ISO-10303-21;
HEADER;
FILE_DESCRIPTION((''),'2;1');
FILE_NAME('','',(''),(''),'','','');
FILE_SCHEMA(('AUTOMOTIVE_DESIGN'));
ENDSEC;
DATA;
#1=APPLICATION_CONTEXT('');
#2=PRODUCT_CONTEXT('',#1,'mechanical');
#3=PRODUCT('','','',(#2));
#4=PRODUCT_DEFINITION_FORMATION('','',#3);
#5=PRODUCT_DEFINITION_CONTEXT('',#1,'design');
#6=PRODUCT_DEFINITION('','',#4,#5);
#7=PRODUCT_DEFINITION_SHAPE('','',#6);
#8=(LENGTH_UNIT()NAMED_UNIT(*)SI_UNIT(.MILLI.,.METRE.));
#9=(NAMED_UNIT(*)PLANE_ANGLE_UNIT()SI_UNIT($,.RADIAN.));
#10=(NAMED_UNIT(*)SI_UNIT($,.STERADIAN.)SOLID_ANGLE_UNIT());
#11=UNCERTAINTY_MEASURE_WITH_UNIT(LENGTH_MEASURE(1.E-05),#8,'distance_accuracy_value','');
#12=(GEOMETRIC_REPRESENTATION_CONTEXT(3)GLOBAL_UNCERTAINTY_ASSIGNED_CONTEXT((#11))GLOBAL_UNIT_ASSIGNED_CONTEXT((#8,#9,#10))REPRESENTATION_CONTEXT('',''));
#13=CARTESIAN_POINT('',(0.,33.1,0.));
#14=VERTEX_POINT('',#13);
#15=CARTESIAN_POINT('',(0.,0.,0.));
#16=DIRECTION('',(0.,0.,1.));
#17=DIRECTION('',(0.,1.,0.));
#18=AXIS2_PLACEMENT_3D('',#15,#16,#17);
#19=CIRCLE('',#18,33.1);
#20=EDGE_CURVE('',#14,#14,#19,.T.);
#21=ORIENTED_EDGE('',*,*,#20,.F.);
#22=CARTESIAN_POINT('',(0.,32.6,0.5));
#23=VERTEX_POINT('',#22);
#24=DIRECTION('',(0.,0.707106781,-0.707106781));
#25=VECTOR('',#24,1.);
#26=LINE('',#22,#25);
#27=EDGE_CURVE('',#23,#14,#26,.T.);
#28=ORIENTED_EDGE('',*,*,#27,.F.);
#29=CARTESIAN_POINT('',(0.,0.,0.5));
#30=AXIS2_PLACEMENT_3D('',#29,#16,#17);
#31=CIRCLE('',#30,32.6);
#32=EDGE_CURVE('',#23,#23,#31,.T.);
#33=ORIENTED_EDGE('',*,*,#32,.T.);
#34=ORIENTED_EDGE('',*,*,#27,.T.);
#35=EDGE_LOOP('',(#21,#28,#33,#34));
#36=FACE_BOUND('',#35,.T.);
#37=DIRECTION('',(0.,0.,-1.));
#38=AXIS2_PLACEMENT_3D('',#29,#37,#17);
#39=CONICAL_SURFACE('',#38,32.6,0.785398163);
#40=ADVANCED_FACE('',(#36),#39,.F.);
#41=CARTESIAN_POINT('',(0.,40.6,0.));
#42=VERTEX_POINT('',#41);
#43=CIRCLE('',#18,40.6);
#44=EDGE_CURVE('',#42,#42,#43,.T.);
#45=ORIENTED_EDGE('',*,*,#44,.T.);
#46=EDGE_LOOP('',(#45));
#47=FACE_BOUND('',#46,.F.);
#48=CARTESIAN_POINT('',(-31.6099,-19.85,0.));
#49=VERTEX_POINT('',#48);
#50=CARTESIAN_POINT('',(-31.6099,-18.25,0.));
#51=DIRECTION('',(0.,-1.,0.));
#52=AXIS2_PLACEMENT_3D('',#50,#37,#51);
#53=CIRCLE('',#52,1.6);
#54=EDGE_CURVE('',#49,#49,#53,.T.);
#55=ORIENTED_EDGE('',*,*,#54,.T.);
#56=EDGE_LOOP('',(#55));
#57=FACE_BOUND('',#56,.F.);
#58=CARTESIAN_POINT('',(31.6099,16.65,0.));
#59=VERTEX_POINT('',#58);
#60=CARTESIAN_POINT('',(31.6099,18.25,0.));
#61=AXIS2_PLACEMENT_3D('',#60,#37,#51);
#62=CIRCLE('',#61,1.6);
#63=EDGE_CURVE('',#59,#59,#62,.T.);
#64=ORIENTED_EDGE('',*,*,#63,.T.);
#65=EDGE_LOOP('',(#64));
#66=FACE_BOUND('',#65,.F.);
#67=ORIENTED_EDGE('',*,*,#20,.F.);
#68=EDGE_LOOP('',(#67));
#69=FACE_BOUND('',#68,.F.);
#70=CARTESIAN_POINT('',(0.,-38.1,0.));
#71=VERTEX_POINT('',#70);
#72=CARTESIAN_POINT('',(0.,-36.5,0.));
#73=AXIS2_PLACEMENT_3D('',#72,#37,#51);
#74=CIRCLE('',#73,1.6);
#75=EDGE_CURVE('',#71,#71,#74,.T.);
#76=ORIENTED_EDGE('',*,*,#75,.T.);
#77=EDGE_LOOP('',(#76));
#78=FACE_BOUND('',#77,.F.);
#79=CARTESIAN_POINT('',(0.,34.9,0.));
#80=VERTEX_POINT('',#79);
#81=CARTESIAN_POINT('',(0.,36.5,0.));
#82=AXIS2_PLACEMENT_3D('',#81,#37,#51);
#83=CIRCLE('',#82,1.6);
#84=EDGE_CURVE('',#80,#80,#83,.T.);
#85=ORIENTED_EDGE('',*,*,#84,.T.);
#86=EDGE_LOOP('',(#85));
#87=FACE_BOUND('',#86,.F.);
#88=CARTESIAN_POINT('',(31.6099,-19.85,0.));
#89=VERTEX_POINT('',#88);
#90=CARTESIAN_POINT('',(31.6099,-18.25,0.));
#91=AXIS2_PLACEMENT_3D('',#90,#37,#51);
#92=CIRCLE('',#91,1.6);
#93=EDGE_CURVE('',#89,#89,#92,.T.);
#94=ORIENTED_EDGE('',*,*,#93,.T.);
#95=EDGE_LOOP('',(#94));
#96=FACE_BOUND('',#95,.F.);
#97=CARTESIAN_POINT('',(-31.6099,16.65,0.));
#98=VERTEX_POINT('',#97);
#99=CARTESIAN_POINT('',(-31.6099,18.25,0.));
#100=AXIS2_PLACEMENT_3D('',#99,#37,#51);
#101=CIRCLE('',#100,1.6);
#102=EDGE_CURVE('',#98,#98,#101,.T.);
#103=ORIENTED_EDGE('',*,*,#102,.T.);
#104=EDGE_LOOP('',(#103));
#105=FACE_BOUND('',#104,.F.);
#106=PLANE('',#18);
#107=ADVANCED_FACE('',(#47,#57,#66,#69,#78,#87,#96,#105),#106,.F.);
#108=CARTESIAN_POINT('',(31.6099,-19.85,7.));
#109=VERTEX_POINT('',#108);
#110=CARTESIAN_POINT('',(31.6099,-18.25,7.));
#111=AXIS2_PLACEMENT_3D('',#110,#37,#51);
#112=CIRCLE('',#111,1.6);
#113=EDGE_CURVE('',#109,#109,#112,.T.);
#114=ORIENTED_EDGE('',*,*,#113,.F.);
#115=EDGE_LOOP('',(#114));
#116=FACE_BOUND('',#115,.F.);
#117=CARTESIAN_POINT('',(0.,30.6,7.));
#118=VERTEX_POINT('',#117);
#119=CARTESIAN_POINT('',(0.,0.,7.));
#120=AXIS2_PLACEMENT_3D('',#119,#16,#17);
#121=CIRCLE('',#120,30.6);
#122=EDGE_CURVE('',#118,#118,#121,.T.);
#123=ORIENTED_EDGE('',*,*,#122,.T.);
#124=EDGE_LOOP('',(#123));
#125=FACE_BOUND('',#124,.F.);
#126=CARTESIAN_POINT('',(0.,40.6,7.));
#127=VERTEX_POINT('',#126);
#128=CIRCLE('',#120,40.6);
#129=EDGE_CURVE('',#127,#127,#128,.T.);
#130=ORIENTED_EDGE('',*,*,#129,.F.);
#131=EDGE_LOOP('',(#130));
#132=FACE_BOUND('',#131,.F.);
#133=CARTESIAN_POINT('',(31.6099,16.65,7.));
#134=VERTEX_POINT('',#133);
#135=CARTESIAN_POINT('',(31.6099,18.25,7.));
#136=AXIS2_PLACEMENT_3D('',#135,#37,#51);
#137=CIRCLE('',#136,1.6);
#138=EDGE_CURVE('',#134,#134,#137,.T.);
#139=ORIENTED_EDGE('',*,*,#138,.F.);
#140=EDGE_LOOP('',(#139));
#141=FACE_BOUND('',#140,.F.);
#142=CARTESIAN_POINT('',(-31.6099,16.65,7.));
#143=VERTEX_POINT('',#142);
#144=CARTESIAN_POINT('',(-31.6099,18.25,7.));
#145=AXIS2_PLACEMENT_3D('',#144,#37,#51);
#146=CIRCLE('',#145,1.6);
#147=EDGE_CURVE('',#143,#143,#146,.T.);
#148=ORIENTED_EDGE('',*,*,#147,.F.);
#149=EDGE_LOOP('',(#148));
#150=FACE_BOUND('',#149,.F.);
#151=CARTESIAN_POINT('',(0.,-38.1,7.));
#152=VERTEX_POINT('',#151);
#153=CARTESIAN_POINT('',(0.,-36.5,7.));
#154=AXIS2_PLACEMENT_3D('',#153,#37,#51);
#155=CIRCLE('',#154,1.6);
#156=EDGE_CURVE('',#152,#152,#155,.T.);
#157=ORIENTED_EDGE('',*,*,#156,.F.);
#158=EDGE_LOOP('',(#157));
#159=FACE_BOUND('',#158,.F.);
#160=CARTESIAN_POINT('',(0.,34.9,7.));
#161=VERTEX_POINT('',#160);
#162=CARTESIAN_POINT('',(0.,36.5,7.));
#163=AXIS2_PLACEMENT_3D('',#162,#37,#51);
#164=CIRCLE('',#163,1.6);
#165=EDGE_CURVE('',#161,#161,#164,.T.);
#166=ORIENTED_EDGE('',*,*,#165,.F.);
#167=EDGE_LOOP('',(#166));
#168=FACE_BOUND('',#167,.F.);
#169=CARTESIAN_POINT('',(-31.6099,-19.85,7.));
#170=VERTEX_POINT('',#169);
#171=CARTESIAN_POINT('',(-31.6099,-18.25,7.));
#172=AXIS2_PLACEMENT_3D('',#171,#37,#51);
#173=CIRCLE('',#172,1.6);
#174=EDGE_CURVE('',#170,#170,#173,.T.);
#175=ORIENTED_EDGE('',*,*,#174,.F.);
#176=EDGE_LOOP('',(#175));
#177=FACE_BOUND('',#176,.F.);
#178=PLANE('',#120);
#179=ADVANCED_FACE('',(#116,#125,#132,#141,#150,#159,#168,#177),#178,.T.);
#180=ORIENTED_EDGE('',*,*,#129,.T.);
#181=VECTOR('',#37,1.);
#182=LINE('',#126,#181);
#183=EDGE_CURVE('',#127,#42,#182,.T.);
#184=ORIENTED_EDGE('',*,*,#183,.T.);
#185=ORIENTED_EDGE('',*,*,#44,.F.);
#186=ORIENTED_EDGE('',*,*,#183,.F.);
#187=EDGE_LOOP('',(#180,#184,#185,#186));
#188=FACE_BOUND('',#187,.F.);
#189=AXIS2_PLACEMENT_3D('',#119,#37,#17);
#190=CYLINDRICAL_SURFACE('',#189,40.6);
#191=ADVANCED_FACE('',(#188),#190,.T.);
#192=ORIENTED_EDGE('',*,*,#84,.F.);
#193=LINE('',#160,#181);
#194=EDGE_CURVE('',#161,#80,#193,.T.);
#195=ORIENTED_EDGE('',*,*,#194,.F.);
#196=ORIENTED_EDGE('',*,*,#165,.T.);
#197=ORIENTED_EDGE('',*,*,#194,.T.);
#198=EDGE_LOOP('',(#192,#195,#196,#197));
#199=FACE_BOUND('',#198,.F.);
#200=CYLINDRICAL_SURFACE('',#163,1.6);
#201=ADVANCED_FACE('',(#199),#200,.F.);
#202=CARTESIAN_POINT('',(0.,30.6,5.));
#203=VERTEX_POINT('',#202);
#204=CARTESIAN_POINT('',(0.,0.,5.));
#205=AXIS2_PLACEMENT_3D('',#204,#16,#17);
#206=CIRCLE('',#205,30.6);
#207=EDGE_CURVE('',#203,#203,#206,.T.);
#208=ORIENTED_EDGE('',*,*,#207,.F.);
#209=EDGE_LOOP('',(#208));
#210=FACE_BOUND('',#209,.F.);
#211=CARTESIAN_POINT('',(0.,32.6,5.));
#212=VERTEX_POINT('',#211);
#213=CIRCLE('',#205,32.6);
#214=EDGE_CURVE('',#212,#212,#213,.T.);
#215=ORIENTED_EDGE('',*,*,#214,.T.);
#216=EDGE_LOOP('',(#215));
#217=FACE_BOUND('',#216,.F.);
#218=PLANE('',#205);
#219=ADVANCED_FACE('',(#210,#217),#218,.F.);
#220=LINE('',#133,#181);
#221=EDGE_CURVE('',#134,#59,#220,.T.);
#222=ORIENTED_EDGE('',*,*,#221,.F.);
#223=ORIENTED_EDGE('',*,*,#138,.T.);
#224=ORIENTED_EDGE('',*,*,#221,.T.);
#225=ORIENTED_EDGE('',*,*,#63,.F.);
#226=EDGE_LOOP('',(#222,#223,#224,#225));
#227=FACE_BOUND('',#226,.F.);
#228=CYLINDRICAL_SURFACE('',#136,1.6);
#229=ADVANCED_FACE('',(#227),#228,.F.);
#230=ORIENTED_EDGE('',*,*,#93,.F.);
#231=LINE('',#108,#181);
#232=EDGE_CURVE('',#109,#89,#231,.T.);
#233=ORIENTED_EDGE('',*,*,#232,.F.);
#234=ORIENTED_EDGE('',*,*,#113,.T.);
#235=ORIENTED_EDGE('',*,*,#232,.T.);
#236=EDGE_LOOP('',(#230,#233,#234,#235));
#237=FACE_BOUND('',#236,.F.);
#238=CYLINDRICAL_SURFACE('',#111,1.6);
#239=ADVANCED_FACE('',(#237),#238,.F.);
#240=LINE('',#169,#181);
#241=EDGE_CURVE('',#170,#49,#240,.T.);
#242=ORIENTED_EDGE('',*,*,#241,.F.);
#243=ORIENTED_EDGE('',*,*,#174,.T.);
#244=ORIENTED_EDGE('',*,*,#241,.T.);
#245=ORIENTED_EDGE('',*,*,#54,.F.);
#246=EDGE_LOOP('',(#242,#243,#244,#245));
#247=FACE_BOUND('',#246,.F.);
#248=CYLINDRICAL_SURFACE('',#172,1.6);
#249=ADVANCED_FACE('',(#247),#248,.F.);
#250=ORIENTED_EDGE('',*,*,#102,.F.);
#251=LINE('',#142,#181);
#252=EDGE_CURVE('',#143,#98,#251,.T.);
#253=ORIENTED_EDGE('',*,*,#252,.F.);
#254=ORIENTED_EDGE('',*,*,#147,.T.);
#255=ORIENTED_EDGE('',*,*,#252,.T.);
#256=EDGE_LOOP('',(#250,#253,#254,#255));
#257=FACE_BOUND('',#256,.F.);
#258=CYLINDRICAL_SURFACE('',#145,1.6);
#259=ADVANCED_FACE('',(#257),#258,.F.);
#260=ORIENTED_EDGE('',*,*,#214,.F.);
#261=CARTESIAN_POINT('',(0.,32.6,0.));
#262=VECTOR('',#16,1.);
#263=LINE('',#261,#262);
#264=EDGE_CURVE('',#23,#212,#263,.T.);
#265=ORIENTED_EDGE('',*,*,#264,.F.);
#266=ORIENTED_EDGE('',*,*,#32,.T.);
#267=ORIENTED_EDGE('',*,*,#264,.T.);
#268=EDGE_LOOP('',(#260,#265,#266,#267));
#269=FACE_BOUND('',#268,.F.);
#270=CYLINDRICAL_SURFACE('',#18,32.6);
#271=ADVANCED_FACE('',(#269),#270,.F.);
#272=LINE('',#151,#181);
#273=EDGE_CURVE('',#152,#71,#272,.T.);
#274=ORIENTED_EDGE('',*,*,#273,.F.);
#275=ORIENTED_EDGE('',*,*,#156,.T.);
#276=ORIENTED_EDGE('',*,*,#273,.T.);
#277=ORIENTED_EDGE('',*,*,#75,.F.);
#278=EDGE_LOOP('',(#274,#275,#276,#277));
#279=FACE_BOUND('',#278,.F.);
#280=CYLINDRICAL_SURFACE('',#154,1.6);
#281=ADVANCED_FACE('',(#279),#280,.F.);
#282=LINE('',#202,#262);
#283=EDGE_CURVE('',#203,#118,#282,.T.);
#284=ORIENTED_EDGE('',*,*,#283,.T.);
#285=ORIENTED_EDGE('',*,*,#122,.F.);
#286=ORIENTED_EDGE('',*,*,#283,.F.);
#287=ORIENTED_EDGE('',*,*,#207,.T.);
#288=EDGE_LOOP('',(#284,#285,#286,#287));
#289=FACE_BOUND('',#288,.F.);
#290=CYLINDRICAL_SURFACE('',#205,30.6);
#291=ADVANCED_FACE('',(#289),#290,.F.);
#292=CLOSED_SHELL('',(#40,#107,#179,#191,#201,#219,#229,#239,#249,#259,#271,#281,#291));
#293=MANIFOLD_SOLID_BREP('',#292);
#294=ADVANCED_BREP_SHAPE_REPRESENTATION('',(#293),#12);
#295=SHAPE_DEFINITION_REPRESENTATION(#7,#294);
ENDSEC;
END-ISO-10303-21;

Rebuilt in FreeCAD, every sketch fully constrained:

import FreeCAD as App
import Part
import Sketcher
from FreeCAD import Vector


def edges_at(feature, points):
    """Names of the edges that pass closest to the given points."""
    edges = feature.Shape.Edges
    near = lambda p: min(range(len(edges)), key=lambda i: edges[i].distToShape(Part.Vertex(*p))[0])
    return sorted({f"Edge{near(p) + 1}" for p in points})

doc = App.newDocument("Part")
body = doc.addObject("PartDesign::Body", "Body")

# Sketch on YZ plane
sketch1 = body.newObject("Sketcher::SketchObject", "Sketch")
sketch1.AttachmentSupport = (doc.getObject("YZ_Plane"), [""])
sketch1.MapMode = "FlatFace"
sketch1.addGeometry(Part.LineSegment(Vector(32.6, 5, 0), Vector(32.6, 0, 0)), False)
sketch1.addGeometry(Part.LineSegment(Vector(32.6, 0, 0), Vector(40.6, 0, 0)), False)
sketch1.addGeometry(Part.LineSegment(Vector(40.6, 0, 0), Vector(40.6, 7, 0)), False)
sketch1.addGeometry(Part.LineSegment(Vector(40.6, 7, 0), Vector(30.6, 7, 0)), False)
sketch1.addGeometry(Part.LineSegment(Vector(30.6, 7, 0), Vector(30.6, 5, 0)), False)
sketch1.addGeometry(Part.LineSegment(Vector(30.6, 5, 0), Vector(32.6, 5, 0)), False)
sketch1.addConstraint(Sketcher.Constraint("Coincident", 0, 2, 1, 1))
sketch1.addConstraint(Sketcher.Constraint("Coincident", 1, 2, 2, 1))
sketch1.addConstraint(Sketcher.Constraint("Coincident", 2, 2, 3, 1))
sketch1.addConstraint(Sketcher.Constraint("Coincident", 3, 2, 4, 1))
sketch1.addConstraint(Sketcher.Constraint("Coincident", 4, 2, 5, 1))
sketch1.addConstraint(Sketcher.Constraint("Coincident", 5, 2, 0, 1))
sketch1.addConstraint(Sketcher.Constraint("Vertical", 0))
sketch1.addConstraint(Sketcher.Constraint("Horizontal", 1))
sketch1.addConstraint(Sketcher.Constraint("Vertical", 2))
sketch1.addConstraint(Sketcher.Constraint("Horizontal", 3))
sketch1.addConstraint(Sketcher.Constraint("Vertical", 4))
sketch1.addConstraint(Sketcher.Constraint("Horizontal", 5))
sketch1.addConstraint(Sketcher.Constraint("PointOnObject", 0, 2, -1))
sketch1.addConstraint(Sketcher.Constraint("Equal", 5, 4))
sketch1.addConstraint(Sketcher.Constraint("DistanceX", 1, 1, 1, 2, 8.0))
sketch1.addConstraint(Sketcher.Constraint("DistanceX", 5, 1, 5, 2, 2.0))
sketch1.addConstraint(Sketcher.Constraint("DistanceY", 0, 2, 0, 1, 5.0))
sketch1.addConstraint(Sketcher.Constraint("DistanceX", -1, 1, 0, 2, 32.6))
revolution = body.newObject("PartDesign::Revolution", "Revolution")
revolution.Profile = sketch1
revolution.ReferenceAxis = (sketch1, ["V_Axis"])
revolution.Angle = 360

# Sketch on XY plane
sketch2 = body.newObject("Sketcher::SketchObject", "Sketch001")
sketch2.AttachmentSupport = (doc.getObject("XY_Plane"), [""])
sketch2.MapMode = "FlatFace"
sketch2.AttachmentOffset = App.Placement(Vector(0, 0, 7), App.Rotation())
sketch2.addGeometry(Part.Circle(Vector(31.6, 18.2, 0), Vector(0, 0, 1), 1.6), False)
sketch2.addGeometry(Part.Circle(Vector(31.6, -18.2, 0), Vector(0, 0, 1), 1.6), False)
sketch2.addGeometry(Part.Circle(Vector(0, -36.5, 0), Vector(0, 0, 1), 1.6), False)
sketch2.addGeometry(Part.Circle(Vector(-31.6, -18.2, 0), Vector(0, 0, 1), 1.6), False)
sketch2.addGeometry(Part.Circle(Vector(-31.6, 18.2, 0), Vector(0, 0, 1), 1.6), False)
sketch2.addGeometry(Part.Circle(Vector(0, 36.5, 0), Vector(0, 0, 1), 1.6), False)
sketch2.addConstraint(Sketcher.Constraint("Equal", 0, 1))
sketch2.addConstraint(Sketcher.Constraint("Equal", 1, 2))
sketch2.addConstraint(Sketcher.Constraint("Equal", 2, 3))
sketch2.addConstraint(Sketcher.Constraint("Equal", 3, 4))
sketch2.addConstraint(Sketcher.Constraint("Equal", 4, 5))
sketch2.addConstraint(Sketcher.Constraint("Symmetric", 0, 3, 3, 3, -1, 1))
sketch2.addConstraint(Sketcher.Constraint("Symmetric", 1, 3, 4, 3, -1, 1))
sketch2.addConstraint(Sketcher.Constraint("Symmetric", 2, 3, 5, 3, -1, 1))
sketch2.addConstraint(Sketcher.Constraint("Symmetric", 1, 3, 3, 3, -2))
sketch2.addConstraint(Sketcher.Constraint("PointOnObject", 2, 3, -2))
sketch2.addConstraint(Sketcher.Constraint("Diameter", 0, 3.2))
sketch2.addConstraint(Sketcher.Constraint("DistanceY", 2, 3, 5, 3, 73.0))
sketch2.addConstraint(Sketcher.Constraint("DistanceY", 1, 3, 0, 3, 36.5))
sketch2.addConstraint(Sketcher.Constraint("DistanceX", -1, 1, 0, 3, 31.61))
doc.recompute()
hole = body.newObject("PartDesign::Hole", "Hole")
hole.Profile = sketch2
hole.ThreadType = "None"
hole.Diameter = 3.2
hole.DepthType = "ThroughAll"
doc.recompute()

chamfer = body.newObject("PartDesign::Chamfer", "Chamfer")
chamfer.Base = (hole, edges_at(hole, [(0, -32.6, 0)]))
chamfer.Size = 0.5

doc.recompute()
